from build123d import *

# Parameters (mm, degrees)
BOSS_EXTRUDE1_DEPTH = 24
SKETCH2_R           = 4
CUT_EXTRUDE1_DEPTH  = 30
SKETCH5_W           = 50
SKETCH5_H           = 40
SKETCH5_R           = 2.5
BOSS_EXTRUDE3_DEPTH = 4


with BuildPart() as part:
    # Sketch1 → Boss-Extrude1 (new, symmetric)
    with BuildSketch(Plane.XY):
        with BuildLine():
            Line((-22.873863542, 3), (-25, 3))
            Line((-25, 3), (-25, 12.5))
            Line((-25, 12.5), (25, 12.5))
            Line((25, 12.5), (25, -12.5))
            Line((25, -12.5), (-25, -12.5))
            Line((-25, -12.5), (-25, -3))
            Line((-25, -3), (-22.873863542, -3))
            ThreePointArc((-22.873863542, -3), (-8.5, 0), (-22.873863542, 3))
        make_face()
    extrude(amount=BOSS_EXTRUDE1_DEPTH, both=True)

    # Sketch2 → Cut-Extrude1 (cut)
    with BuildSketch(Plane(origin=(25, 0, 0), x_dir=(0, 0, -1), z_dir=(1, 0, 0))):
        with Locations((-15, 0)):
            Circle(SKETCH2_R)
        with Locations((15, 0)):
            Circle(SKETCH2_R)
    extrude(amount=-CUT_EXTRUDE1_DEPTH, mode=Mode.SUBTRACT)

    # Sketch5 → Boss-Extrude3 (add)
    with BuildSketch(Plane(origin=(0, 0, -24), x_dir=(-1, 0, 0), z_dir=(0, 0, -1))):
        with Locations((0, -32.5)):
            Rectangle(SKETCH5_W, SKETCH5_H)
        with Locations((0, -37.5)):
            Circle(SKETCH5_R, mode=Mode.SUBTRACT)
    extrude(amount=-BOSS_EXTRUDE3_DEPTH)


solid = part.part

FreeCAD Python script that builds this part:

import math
import FreeCAD as App
import Part
import Sketcher
from FreeCAD import Vector


def add_polygon(sketch, points):
    """Adds a closed chain of lines whose ends are joined by coincident constraints."""
    first, n = sketch.GeometryCount, len(points)
    for a, b in zip(points, points[1:] + points[:1]):
        sketch.addGeometry(Part.LineSegment(App.Vector(*a, 0), App.Vector(*b, 0)), False)
    for i in range(n):
        sketch.addConstraint(Sketcher.Constraint("Coincident", first + i, 2, first + (i + 1) % n, 1))

doc = App.newDocument("Part")
params = doc.addObject("Spreadsheet::Sheet", "Params")
for row, (alias, value) in enumerate([
    ("sketch1_radius", "7.5 mm"),
    ("sketch1_width", "50 mm"),
    ("sketch1_height", "25 mm"),
    ("sketch1_height2", "9.5 mm"),
    ("pad1_length", "48 mm"),
    ("sketch2_diameter", "8 mm"),
    ("pocket1_length", "30 mm"),
    ("sketch3_diameter", "5 mm"),
    ("sketch3_width", "50 mm"),
    ("sketch3_height", "40 mm"),
    ("pad2_length", "4 mm"),
], start=1):
    params.set(f"A{row}", alias)
    params.set(f"B{row}", "=" + value)
    params.setAlias(f"B{row}", alias)

body = doc.addObject("PartDesign::Body", "Body")

# Sketch on XY plane
sketch1 = body.newObject("Sketcher::SketchObject", "Sketch")
sketch1.AttachmentSupport = (doc.getObject("XY_Plane"), [""])
sketch1.MapMode = "FlatFace"
sketch1.addGeometry([
    Part.LineSegment(Vector(-25, 3, 0), Vector(-22.873864, 3, 0)),  # 0
    Part.ArcOfCircle(Part.Circle(Vector(-16, 0, 0), Vector(0, 0, 1), 7.5), math.radians(-156.421822), math.radians(156.421822)),  # 1
    Part.LineSegment(Vector(-22.873864, -3, 0), Vector(-25, -3, 0)),  # 2
    Part.LineSegment(Vector(-25, -3, 0), Vector(-25, -12.5, 0)),  # 3
    Part.LineSegment(Vector(-25, -12.5, 0), Vector(25, -12.5, 0)),  # 4
    Part.LineSegment(Vector(25, -12.5, 0), Vector(25, 12.5, 0)),  # 5
    Part.LineSegment(Vector(25, 12.5, 0), Vector(-25, 12.5, 0)),  # 6
    Part.LineSegment(Vector(-25, 12.5, 0), Vector(-25, 3, 0)),  # 7
], False)
sketch1.addConstraint([
    Sketcher.Constraint("Coincident", 0, 2, 1, 2),
    Sketcher.Constraint("Coincident", 1, 1, 2, 1),
    Sketcher.Constraint("Coincident", 2, 2, 3, 1),
    Sketcher.Constraint("Coincident", 3, 2, 4, 1),
    Sketcher.Constraint("Coincident", 4, 2, 5, 1),
    Sketcher.Constraint("Coincident", 5, 2, 6, 1),
    Sketcher.Constraint("Coincident", 6, 2, 7, 1),
    Sketcher.Constraint("Coincident", 7, 2, 0, 1),
    Sketcher.Constraint("Horizontal", 0),
    Sketcher.Constraint("Horizontal", 2),
    Sketcher.Constraint("Vertical", 3),
    Sketcher.Constraint("Horizontal", 4),
    Sketcher.Constraint("Vertical", 5),
    Sketcher.Constraint("Horizontal", 6),
    Sketcher.Constraint("Vertical", 7),
    Sketcher.Constraint("Symmetric", 3, 2, 5, 2, -1, 1),
    Sketcher.Constraint("Symmetric", 0, 2, 1, 1, -1),
    Sketcher.Constraint("Vertical", 3, 2, 6, 2),
    Sketcher.Constraint("Radius", 1, 7.5),
    Sketcher.Constraint("DistanceX", 4, 1, 4, 2, 50.0),
    Sketcher.Constraint("DistanceY", 5, 1, 5, 2, 25.0),
    Sketcher.Constraint("DistanceY", 3, 2, 3, 1, 9.5),
    Sketcher.Constraint("DistanceX", 1, 3, -1, 1, 16.0),
])
sketch1.setExpression("Constraints[18]", "Params.sketch1_radius")
sketch1.setExpression("Constraints[19]", "Params.sketch1_width")
sketch1.setExpression("Constraints[20]", "Params.sketch1_height")
sketch1.setExpression("Constraints[21]", "Params.sketch1_height2")
pad1 = body.newObject("PartDesign::Pad", "Pad")
pad1.Profile = sketch1
pad1.setExpression("Length", "Params.pad1_length")
pad1.Midplane = True

# Sketch on YZ plane
sketch2 = body.newObject("Sketcher::SketchObject", "Sketch001")
sketch2.AttachmentSupport = (doc.getObject("YZ_Plane"), [""])
sketch2.MapMode = "FlatFace"
sketch2.AttachmentOffset = App.Placement(Vector(0, 0, 25), App.Rotation())
sketch2.addGeometry([
    Part.Circle(Vector(0, 15, 0), Vector(0, 0, 1), 4),
    Part.Circle(Vector(0, -15, 0), Vector(0, 0, 1), 4),
], False)
sketch2.addConstraint([
    Sketcher.Constraint("Equal", 0, 1),
    Sketcher.Constraint("Symmetric", 0, 3, 1, 3, -1, 1),
    Sketcher.Constraint("PointOnObject", 0, 3, -2),
    Sketcher.Constraint("Diameter", 0, 8.0),
    Sketcher.Constraint("DistanceY", -1, 1, 0, 3, 15.0),
])
sketch2.setExpression("Constraints[3]", "Params.sketch2_diameter")
pocket1 = body.newObject("PartDesign::Pocket", "Pocket")
pocket1.Profile = sketch2
pocket1.setExpression("Length", "Params.pocket1_length")

# Sketch on XY plane
sketch3 = body.newObject("Sketcher::SketchObject", "Sketch002")
sketch3.AttachmentSupport = (doc.getObject("XY_Plane"), [""])
sketch3.MapMode = "FlatFace"
sketch3.AttachmentOffset = App.Placement(Vector(0, 0, -24), App.Rotation())
add_polygon(sketch3, [(25, -12.5), (25, -52.5), (-25, -52.5), (-25, -12.5)])  # lines 0-3
sketch3.addGeometry(Part.Circle(Vector(0, -37.5, 0), Vector(0, 0, 1), 2.5), False)  # 4
sketch3.addConstraint([
    Sketcher.Constraint("Vertical", 0),
    Sketcher.Constraint("Horizontal", 1),
    Sketcher.Constraint("Vertical", 2),
    Sketcher.Constraint("Horizontal", 3),
    Sketcher.Constraint("PointOnObject", 4, 3, -2),
    Sketcher.Constraint("Diameter", 4, 5.0),
    Sketcher.Constraint("DistanceX", 1, 2, 1, 1, 50.0),
    Sketcher.Constraint("DistanceY", 0, 2, 0, 1, 40.0),
    Sketcher.Constraint("DistanceX", -1, 1, 0, 2, 25.0),
    Sketcher.Constraint("DistanceY", 0, 2, 4, 3, 15.0),
    Sketcher.Constraint("DistanceY", 4, 3, -1, 1, 37.5),
])
sketch3.setExpression("Constraints[9]", "Params.sketch3_diameter")
sketch3.setExpression("Constraints[10]", "Params.sketch3_width")
sketch3.setExpression("Constraints[11]", "Params.sketch3_height")
pad2 = body.newObject("PartDesign::Pad", "Pad001")
pad2.Profile = sketch3
pad2.setExpression("Length", "Params.pad2_length")

doc.recompute()
